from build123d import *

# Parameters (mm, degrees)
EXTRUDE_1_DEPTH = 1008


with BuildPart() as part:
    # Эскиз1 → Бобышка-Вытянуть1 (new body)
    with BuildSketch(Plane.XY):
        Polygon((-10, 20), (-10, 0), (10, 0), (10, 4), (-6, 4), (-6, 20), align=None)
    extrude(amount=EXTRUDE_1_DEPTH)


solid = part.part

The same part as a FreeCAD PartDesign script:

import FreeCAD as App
import Part
import Sketcher

V = App.Vector

doc = App.newDocument("Part")
body = doc.addObject("PartDesign::Body", "Body")

# Sketch on XY plane
sketch1 = doc.addObject("Sketcher::SketchObject", "Sketch")
body.addObject(sketch1)
sketch1.AttachmentSupport = (doc.XY_Plane, [""])
sketch1.MapMode = "FlatFace"
sketch1.addGeometry([
    Part.LineSegment(V(-10, 20, 0), V(-10, 0, 0)),  # 0
    Part.LineSegment(V(-10, 0, 0), V(10, 0, 0)),  # 1
    Part.LineSegment(V(10, 0, 0), V(10, 4, 0)),  # 2
    Part.LineSegment(V(10, 4, 0), V(-6, 4, 0)),  # 3
    Part.LineSegment(V(-6, 4, 0), V(-6, 20, 0)),  # 4
    Part.LineSegment(V(-6, 20, 0), V(-10, 20, 0)),  # 5
], False)
sketch1.addConstraint([
    Sketcher.Constraint("Coincident", 0, 2, 1, 1),
    Sketcher.Constraint("Coincident", 1, 2, 2, 1),
    Sketcher.Constraint("Coincident", 2, 2, 3, 1),
    Sketcher.Constraint("Coincident", 3, 2, 4, 1),
    Sketcher.Constraint("Coincident", 4, 2, 5, 1),
    Sketcher.Constraint("Coincident", 5, 2, 0, 1),
    Sketcher.Constraint("Vertical", 0),
    Sketcher.Constraint("Horizontal", 1),
    Sketcher.Constraint("Vertical", 2),
    Sketcher.Constraint("Horizontal", 3),
    Sketcher.Constraint("Vertical", 4),
    Sketcher.Constraint("Horizontal", 5),
    Sketcher.Constraint("Symmetric", 0, 2, 1, 2, -1, 1),
    Sketcher.Constraint("Equal", 1, 0),
    Sketcher.Constraint("Equal", 5, 2),
    Sketcher.Constraint("DistanceX", 1, 1, 1, 2, 20.0),
    Sketcher.Constraint("DistanceX", 3, 2, 3, 1, 16.0),
])
pad1 = doc.addObject("PartDesign::Pad", "Pad")
body.addObject(pad1)
pad1.Profile = sketch1
pad1.Length = 1008

doc.recompute()
